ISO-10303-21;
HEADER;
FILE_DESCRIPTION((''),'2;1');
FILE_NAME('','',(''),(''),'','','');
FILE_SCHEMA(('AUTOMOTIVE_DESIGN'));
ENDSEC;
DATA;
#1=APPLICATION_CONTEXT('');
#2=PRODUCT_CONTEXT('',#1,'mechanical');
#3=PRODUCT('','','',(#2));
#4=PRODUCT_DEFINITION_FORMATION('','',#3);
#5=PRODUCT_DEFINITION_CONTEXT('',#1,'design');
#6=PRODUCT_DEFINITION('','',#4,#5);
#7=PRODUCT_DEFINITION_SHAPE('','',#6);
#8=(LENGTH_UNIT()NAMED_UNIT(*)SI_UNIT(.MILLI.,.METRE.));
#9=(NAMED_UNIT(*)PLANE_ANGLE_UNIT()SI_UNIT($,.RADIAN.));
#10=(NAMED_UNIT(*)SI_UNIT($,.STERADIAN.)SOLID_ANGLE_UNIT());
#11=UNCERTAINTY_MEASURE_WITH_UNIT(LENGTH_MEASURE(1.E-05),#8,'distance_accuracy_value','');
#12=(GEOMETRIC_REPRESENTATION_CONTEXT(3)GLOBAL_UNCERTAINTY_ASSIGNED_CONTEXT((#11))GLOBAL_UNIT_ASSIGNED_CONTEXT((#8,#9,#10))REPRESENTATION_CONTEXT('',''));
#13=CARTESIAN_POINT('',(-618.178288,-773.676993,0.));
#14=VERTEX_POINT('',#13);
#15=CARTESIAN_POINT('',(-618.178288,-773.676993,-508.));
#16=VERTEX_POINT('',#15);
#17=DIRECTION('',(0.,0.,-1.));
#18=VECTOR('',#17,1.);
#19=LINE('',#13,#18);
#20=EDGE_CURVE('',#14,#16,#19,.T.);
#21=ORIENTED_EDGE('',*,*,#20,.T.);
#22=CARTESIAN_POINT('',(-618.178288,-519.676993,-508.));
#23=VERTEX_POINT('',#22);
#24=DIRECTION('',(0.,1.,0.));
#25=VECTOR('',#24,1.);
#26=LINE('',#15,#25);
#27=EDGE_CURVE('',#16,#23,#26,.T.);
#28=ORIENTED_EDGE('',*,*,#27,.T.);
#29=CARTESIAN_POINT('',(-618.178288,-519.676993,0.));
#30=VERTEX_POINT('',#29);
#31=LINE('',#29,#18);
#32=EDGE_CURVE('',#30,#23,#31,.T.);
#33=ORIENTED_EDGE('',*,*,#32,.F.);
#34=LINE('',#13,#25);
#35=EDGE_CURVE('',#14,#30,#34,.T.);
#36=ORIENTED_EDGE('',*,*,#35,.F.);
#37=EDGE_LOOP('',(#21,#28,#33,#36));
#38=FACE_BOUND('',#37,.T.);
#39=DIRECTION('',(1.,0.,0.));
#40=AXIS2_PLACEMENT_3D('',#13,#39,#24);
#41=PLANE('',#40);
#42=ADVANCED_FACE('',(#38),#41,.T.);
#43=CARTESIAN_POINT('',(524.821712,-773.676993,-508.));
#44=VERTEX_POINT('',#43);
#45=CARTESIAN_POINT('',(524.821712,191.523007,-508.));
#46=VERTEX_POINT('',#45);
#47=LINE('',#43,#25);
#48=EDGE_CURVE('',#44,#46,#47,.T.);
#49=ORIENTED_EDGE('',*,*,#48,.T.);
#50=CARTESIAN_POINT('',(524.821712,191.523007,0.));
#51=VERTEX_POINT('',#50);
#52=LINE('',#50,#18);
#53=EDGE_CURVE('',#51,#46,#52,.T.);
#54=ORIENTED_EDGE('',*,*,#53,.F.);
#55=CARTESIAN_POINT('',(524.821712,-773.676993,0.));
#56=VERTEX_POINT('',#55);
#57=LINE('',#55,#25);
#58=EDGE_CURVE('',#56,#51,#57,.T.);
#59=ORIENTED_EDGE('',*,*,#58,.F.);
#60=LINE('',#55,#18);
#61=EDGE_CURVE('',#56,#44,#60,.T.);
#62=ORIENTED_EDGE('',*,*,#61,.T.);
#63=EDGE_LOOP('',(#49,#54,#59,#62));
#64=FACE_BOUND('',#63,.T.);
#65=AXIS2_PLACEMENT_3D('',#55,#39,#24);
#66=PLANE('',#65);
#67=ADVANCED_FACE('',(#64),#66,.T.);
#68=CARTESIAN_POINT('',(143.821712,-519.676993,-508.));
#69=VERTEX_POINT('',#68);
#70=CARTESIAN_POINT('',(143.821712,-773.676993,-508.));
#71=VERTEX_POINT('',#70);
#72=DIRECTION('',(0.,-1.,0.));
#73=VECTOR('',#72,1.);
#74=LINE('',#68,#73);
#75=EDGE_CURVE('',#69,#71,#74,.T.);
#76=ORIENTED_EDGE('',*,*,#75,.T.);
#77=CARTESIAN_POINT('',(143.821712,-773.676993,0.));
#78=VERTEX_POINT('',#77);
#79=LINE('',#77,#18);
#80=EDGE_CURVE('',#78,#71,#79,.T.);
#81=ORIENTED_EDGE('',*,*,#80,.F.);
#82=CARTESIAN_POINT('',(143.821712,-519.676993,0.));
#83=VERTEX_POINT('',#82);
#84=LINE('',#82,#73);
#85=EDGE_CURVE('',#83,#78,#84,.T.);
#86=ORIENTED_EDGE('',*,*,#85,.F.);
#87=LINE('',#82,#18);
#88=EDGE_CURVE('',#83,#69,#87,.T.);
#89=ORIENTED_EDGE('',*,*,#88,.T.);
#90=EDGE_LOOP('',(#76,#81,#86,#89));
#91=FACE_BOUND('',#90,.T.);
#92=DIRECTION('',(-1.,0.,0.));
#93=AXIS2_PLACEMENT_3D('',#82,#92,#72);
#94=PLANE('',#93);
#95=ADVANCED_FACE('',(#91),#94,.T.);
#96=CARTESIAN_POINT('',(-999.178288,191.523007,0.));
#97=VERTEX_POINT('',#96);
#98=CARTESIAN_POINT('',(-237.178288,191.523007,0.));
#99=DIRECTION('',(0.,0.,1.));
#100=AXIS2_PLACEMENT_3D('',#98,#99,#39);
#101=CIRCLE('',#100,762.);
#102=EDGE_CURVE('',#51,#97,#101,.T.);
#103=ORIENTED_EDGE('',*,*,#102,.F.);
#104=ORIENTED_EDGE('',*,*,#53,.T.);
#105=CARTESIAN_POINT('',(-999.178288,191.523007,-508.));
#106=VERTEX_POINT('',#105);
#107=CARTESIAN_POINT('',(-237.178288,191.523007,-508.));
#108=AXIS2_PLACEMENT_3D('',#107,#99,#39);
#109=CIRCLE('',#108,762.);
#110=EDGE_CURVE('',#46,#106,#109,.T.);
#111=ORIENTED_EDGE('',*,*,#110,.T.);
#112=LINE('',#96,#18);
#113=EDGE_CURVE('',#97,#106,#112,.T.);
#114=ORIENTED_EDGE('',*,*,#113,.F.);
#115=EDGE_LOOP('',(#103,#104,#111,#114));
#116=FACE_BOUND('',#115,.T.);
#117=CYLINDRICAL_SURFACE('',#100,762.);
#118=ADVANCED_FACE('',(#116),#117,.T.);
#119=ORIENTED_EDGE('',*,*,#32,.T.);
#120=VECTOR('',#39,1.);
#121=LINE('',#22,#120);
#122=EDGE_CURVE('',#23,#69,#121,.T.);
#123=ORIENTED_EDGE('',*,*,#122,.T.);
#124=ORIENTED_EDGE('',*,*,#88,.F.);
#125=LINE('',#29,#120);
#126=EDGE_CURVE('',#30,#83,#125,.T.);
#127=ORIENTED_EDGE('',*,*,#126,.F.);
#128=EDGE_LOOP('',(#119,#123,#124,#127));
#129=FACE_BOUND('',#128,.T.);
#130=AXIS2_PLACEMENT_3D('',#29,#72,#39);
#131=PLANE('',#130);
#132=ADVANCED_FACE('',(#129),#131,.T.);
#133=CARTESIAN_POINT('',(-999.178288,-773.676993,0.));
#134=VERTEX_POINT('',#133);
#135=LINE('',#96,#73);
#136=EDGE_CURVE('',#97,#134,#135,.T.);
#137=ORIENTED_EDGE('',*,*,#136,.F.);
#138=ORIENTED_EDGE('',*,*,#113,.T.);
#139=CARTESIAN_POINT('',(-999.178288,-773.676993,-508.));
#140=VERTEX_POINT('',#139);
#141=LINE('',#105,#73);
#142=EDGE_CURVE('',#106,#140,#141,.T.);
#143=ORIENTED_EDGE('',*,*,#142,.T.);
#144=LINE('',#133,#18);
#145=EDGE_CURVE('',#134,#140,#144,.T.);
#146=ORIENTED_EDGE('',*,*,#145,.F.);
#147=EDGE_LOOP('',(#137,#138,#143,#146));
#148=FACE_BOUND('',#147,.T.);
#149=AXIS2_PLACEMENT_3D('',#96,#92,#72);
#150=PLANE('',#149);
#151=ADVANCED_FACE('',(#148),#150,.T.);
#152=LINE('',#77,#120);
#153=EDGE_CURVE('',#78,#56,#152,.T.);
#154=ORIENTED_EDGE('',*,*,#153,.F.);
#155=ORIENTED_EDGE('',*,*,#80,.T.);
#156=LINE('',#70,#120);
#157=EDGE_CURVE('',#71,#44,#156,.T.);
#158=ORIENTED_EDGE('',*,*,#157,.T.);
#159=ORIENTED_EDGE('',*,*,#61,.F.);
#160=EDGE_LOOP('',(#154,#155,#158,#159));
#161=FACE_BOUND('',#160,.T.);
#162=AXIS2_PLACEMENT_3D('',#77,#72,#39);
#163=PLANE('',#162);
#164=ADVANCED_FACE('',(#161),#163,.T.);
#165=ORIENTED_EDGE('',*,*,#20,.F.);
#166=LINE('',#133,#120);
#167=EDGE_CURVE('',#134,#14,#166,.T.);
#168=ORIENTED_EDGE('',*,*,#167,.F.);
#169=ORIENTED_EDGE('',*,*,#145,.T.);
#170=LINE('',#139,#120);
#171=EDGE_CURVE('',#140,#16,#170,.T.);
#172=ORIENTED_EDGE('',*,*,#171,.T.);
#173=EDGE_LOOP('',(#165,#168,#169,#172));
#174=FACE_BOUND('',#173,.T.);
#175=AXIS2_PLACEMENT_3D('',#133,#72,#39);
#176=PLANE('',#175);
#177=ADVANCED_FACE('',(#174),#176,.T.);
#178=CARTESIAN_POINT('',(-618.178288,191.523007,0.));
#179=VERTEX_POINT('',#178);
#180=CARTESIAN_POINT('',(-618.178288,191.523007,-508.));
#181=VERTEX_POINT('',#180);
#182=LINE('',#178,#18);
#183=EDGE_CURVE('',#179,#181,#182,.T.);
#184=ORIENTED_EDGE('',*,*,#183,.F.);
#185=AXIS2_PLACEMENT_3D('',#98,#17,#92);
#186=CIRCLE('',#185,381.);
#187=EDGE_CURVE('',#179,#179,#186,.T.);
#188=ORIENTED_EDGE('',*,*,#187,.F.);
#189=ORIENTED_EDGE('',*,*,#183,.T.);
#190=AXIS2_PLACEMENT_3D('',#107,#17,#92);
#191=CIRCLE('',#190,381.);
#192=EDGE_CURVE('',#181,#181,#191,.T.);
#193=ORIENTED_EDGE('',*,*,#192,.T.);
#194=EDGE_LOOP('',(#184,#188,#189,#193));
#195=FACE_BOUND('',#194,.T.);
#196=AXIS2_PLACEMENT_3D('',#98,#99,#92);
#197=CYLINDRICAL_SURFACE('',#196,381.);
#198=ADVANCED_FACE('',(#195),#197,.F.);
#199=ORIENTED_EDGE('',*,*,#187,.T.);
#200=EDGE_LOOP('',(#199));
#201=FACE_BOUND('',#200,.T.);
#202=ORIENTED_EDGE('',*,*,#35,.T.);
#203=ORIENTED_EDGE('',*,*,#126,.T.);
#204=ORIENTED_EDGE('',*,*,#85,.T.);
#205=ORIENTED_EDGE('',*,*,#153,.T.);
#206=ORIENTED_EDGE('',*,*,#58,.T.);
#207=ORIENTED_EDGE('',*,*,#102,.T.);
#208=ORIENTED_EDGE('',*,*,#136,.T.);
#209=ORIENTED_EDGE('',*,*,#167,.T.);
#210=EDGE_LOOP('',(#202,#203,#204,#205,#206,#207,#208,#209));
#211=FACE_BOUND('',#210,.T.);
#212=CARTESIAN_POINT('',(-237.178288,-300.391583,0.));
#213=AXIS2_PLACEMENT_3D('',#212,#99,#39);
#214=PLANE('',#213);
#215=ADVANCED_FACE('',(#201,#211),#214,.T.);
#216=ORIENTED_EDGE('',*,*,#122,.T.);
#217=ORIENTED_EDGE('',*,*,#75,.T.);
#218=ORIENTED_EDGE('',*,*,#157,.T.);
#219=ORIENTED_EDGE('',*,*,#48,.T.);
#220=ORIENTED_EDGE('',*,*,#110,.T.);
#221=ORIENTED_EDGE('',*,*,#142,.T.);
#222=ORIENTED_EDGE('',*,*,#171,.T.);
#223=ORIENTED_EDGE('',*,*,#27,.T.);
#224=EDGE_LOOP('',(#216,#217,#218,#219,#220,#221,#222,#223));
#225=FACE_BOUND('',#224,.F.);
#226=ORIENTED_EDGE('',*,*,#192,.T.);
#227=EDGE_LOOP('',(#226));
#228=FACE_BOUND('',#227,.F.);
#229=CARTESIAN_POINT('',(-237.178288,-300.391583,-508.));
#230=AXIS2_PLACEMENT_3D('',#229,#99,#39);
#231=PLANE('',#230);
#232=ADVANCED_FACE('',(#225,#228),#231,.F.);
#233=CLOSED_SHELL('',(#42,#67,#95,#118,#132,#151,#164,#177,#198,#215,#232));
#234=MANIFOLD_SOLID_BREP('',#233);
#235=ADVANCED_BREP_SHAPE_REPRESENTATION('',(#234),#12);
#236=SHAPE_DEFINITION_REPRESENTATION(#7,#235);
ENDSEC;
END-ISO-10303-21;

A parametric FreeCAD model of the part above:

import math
import FreeCAD as App
import Part
import Sketcher
from FreeCAD import Vector
Q = App.Units.Quantity

doc = App.newDocument("Part")
body = doc.addObject("PartDesign::Body", "Body")

sketch1 = body.newObject("Sketcher::SketchObject", "Sketch")
sketch1.AttachmentSupport = (doc.getObject("XY_Plane"), [""])
sketch1.MapMode = "FlatFace"
sketch1.addGeometry(Part.LineSegment(Vector(525, -774, 0), Vector(525, 192, 0)), False)
sketch1.addGeometry(Part.ArcOfCircle(Part.Circle(Vector(-237, 192, 0), Vector(0, 0, 1), 762), math.radians(0), math.radians(180)), False)
sketch1.addGeometry(Part.LineSegment(Vector(-999, 192, 0), Vector(-999, -774, 0)), False)
sketch1.addGeometry(Part.LineSegment(Vector(-999, -774, 0), Vector(-618, -774, 0)), False)
sketch1.addGeometry(Part.LineSegment(Vector(-618, -774, 0), Vector(-618, -520, 0)), False)
sketch1.addGeometry(Part.LineSegment(Vector(-618, -520, 0), Vector(144, -520, 0)), False)
sketch1.addGeometry(Part.LineSegment(Vector(144, -520, 0), Vector(144, -774, 0)), False)
sketch1.addGeometry(Part.LineSegment(Vector(144, -774, 0), Vector(525, -774, 0)), False)
sketch1.addGeometry(Part.Circle(Vector(-237, 192, 0), Vector(0, 0, 1), 381), False)
sketch1.addConstraint(Sketcher.Constraint("Tangent", 0, 2, 1, 1))
sketch1.addConstraint(Sketcher.Constraint("Tangent", 1, 2, 2, 1))
sketch1.addConstraint(Sketcher.Constraint("Coincident", 2, 2, 3, 1))
sketch1.addConstraint(Sketcher.Constraint("Coincident", 3, 2, 4, 1))
sketch1.addConstraint(Sketcher.Constraint("Coincident", 4, 2, 5, 1))
sketch1.addConstraint(Sketcher.Constraint("Coincident", 5, 2, 6, 1))
sketch1.addConstraint(Sketcher.Constraint("Coincident", 6, 2, 7, 1))
sketch1.addConstraint(Sketcher.Constraint("Coincident", 7, 2, 0, 1))
sketch1.addConstraint(Sketcher.Constraint("Vertical", 0))
sketch1.addConstraint(Sketcher.Constraint("Vertical", 2))
sketch1.addConstraint(Sketcher.Constraint("Horizontal", 3))
sketch1.addConstraint(Sketcher.Constraint("Vertical", 4))
sketch1.addConstraint(Sketcher.Constraint("Horizontal", 5))
sketch1.addConstraint(Sketcher.Constraint("Vertical", 6))
sketch1.addConstraint(Sketcher.Constraint("Horizontal", 7))
sketch1.addConstraint(Sketcher.Constraint("Coincident", 8, 3, 1, 3))
sketch1.addConstraint(Sketcher.Constraint("Horizontal", 3, 2, 6, 2))
sketch1.addConstraint(Sketcher.Constraint("Equal", 3, 7))
sketch1.addConstraint(Sketcher.Constraint("Diameter", 8, Q("30 in")))
sketch1.addConstraint(Sketcher.Constraint("Radius", 1, Q("30 in")))
sketch1.addConstraint(Sketcher.Constraint("DistanceX", 3, 1, 3, 2, Q("15 in")))
sketch1.addConstraint(Sketcher.Constraint("DistanceY", 0, 1, 0, 2, Q("38 in")))
sketch1.addConstraint(Sketcher.Constraint("DistanceY", 4, 1, 4, 2, Q("10 in")))
sketch1.addConstraint(Sketcher.Constraint("DistanceX", 1, 3, -1, 1, Q("237.178288 mm")))
sketch1.addConstraint(Sketcher.Constraint("DistanceY", -1, 1, 1, 3, Q("191.523007 mm")))
pad1 = body.newObject("PartDesign::Pad", "Pad")
pad1.Profile = sketch1
pad1.Length = Q("20 in")
pad1.Reversed = True

doc.recompute()
